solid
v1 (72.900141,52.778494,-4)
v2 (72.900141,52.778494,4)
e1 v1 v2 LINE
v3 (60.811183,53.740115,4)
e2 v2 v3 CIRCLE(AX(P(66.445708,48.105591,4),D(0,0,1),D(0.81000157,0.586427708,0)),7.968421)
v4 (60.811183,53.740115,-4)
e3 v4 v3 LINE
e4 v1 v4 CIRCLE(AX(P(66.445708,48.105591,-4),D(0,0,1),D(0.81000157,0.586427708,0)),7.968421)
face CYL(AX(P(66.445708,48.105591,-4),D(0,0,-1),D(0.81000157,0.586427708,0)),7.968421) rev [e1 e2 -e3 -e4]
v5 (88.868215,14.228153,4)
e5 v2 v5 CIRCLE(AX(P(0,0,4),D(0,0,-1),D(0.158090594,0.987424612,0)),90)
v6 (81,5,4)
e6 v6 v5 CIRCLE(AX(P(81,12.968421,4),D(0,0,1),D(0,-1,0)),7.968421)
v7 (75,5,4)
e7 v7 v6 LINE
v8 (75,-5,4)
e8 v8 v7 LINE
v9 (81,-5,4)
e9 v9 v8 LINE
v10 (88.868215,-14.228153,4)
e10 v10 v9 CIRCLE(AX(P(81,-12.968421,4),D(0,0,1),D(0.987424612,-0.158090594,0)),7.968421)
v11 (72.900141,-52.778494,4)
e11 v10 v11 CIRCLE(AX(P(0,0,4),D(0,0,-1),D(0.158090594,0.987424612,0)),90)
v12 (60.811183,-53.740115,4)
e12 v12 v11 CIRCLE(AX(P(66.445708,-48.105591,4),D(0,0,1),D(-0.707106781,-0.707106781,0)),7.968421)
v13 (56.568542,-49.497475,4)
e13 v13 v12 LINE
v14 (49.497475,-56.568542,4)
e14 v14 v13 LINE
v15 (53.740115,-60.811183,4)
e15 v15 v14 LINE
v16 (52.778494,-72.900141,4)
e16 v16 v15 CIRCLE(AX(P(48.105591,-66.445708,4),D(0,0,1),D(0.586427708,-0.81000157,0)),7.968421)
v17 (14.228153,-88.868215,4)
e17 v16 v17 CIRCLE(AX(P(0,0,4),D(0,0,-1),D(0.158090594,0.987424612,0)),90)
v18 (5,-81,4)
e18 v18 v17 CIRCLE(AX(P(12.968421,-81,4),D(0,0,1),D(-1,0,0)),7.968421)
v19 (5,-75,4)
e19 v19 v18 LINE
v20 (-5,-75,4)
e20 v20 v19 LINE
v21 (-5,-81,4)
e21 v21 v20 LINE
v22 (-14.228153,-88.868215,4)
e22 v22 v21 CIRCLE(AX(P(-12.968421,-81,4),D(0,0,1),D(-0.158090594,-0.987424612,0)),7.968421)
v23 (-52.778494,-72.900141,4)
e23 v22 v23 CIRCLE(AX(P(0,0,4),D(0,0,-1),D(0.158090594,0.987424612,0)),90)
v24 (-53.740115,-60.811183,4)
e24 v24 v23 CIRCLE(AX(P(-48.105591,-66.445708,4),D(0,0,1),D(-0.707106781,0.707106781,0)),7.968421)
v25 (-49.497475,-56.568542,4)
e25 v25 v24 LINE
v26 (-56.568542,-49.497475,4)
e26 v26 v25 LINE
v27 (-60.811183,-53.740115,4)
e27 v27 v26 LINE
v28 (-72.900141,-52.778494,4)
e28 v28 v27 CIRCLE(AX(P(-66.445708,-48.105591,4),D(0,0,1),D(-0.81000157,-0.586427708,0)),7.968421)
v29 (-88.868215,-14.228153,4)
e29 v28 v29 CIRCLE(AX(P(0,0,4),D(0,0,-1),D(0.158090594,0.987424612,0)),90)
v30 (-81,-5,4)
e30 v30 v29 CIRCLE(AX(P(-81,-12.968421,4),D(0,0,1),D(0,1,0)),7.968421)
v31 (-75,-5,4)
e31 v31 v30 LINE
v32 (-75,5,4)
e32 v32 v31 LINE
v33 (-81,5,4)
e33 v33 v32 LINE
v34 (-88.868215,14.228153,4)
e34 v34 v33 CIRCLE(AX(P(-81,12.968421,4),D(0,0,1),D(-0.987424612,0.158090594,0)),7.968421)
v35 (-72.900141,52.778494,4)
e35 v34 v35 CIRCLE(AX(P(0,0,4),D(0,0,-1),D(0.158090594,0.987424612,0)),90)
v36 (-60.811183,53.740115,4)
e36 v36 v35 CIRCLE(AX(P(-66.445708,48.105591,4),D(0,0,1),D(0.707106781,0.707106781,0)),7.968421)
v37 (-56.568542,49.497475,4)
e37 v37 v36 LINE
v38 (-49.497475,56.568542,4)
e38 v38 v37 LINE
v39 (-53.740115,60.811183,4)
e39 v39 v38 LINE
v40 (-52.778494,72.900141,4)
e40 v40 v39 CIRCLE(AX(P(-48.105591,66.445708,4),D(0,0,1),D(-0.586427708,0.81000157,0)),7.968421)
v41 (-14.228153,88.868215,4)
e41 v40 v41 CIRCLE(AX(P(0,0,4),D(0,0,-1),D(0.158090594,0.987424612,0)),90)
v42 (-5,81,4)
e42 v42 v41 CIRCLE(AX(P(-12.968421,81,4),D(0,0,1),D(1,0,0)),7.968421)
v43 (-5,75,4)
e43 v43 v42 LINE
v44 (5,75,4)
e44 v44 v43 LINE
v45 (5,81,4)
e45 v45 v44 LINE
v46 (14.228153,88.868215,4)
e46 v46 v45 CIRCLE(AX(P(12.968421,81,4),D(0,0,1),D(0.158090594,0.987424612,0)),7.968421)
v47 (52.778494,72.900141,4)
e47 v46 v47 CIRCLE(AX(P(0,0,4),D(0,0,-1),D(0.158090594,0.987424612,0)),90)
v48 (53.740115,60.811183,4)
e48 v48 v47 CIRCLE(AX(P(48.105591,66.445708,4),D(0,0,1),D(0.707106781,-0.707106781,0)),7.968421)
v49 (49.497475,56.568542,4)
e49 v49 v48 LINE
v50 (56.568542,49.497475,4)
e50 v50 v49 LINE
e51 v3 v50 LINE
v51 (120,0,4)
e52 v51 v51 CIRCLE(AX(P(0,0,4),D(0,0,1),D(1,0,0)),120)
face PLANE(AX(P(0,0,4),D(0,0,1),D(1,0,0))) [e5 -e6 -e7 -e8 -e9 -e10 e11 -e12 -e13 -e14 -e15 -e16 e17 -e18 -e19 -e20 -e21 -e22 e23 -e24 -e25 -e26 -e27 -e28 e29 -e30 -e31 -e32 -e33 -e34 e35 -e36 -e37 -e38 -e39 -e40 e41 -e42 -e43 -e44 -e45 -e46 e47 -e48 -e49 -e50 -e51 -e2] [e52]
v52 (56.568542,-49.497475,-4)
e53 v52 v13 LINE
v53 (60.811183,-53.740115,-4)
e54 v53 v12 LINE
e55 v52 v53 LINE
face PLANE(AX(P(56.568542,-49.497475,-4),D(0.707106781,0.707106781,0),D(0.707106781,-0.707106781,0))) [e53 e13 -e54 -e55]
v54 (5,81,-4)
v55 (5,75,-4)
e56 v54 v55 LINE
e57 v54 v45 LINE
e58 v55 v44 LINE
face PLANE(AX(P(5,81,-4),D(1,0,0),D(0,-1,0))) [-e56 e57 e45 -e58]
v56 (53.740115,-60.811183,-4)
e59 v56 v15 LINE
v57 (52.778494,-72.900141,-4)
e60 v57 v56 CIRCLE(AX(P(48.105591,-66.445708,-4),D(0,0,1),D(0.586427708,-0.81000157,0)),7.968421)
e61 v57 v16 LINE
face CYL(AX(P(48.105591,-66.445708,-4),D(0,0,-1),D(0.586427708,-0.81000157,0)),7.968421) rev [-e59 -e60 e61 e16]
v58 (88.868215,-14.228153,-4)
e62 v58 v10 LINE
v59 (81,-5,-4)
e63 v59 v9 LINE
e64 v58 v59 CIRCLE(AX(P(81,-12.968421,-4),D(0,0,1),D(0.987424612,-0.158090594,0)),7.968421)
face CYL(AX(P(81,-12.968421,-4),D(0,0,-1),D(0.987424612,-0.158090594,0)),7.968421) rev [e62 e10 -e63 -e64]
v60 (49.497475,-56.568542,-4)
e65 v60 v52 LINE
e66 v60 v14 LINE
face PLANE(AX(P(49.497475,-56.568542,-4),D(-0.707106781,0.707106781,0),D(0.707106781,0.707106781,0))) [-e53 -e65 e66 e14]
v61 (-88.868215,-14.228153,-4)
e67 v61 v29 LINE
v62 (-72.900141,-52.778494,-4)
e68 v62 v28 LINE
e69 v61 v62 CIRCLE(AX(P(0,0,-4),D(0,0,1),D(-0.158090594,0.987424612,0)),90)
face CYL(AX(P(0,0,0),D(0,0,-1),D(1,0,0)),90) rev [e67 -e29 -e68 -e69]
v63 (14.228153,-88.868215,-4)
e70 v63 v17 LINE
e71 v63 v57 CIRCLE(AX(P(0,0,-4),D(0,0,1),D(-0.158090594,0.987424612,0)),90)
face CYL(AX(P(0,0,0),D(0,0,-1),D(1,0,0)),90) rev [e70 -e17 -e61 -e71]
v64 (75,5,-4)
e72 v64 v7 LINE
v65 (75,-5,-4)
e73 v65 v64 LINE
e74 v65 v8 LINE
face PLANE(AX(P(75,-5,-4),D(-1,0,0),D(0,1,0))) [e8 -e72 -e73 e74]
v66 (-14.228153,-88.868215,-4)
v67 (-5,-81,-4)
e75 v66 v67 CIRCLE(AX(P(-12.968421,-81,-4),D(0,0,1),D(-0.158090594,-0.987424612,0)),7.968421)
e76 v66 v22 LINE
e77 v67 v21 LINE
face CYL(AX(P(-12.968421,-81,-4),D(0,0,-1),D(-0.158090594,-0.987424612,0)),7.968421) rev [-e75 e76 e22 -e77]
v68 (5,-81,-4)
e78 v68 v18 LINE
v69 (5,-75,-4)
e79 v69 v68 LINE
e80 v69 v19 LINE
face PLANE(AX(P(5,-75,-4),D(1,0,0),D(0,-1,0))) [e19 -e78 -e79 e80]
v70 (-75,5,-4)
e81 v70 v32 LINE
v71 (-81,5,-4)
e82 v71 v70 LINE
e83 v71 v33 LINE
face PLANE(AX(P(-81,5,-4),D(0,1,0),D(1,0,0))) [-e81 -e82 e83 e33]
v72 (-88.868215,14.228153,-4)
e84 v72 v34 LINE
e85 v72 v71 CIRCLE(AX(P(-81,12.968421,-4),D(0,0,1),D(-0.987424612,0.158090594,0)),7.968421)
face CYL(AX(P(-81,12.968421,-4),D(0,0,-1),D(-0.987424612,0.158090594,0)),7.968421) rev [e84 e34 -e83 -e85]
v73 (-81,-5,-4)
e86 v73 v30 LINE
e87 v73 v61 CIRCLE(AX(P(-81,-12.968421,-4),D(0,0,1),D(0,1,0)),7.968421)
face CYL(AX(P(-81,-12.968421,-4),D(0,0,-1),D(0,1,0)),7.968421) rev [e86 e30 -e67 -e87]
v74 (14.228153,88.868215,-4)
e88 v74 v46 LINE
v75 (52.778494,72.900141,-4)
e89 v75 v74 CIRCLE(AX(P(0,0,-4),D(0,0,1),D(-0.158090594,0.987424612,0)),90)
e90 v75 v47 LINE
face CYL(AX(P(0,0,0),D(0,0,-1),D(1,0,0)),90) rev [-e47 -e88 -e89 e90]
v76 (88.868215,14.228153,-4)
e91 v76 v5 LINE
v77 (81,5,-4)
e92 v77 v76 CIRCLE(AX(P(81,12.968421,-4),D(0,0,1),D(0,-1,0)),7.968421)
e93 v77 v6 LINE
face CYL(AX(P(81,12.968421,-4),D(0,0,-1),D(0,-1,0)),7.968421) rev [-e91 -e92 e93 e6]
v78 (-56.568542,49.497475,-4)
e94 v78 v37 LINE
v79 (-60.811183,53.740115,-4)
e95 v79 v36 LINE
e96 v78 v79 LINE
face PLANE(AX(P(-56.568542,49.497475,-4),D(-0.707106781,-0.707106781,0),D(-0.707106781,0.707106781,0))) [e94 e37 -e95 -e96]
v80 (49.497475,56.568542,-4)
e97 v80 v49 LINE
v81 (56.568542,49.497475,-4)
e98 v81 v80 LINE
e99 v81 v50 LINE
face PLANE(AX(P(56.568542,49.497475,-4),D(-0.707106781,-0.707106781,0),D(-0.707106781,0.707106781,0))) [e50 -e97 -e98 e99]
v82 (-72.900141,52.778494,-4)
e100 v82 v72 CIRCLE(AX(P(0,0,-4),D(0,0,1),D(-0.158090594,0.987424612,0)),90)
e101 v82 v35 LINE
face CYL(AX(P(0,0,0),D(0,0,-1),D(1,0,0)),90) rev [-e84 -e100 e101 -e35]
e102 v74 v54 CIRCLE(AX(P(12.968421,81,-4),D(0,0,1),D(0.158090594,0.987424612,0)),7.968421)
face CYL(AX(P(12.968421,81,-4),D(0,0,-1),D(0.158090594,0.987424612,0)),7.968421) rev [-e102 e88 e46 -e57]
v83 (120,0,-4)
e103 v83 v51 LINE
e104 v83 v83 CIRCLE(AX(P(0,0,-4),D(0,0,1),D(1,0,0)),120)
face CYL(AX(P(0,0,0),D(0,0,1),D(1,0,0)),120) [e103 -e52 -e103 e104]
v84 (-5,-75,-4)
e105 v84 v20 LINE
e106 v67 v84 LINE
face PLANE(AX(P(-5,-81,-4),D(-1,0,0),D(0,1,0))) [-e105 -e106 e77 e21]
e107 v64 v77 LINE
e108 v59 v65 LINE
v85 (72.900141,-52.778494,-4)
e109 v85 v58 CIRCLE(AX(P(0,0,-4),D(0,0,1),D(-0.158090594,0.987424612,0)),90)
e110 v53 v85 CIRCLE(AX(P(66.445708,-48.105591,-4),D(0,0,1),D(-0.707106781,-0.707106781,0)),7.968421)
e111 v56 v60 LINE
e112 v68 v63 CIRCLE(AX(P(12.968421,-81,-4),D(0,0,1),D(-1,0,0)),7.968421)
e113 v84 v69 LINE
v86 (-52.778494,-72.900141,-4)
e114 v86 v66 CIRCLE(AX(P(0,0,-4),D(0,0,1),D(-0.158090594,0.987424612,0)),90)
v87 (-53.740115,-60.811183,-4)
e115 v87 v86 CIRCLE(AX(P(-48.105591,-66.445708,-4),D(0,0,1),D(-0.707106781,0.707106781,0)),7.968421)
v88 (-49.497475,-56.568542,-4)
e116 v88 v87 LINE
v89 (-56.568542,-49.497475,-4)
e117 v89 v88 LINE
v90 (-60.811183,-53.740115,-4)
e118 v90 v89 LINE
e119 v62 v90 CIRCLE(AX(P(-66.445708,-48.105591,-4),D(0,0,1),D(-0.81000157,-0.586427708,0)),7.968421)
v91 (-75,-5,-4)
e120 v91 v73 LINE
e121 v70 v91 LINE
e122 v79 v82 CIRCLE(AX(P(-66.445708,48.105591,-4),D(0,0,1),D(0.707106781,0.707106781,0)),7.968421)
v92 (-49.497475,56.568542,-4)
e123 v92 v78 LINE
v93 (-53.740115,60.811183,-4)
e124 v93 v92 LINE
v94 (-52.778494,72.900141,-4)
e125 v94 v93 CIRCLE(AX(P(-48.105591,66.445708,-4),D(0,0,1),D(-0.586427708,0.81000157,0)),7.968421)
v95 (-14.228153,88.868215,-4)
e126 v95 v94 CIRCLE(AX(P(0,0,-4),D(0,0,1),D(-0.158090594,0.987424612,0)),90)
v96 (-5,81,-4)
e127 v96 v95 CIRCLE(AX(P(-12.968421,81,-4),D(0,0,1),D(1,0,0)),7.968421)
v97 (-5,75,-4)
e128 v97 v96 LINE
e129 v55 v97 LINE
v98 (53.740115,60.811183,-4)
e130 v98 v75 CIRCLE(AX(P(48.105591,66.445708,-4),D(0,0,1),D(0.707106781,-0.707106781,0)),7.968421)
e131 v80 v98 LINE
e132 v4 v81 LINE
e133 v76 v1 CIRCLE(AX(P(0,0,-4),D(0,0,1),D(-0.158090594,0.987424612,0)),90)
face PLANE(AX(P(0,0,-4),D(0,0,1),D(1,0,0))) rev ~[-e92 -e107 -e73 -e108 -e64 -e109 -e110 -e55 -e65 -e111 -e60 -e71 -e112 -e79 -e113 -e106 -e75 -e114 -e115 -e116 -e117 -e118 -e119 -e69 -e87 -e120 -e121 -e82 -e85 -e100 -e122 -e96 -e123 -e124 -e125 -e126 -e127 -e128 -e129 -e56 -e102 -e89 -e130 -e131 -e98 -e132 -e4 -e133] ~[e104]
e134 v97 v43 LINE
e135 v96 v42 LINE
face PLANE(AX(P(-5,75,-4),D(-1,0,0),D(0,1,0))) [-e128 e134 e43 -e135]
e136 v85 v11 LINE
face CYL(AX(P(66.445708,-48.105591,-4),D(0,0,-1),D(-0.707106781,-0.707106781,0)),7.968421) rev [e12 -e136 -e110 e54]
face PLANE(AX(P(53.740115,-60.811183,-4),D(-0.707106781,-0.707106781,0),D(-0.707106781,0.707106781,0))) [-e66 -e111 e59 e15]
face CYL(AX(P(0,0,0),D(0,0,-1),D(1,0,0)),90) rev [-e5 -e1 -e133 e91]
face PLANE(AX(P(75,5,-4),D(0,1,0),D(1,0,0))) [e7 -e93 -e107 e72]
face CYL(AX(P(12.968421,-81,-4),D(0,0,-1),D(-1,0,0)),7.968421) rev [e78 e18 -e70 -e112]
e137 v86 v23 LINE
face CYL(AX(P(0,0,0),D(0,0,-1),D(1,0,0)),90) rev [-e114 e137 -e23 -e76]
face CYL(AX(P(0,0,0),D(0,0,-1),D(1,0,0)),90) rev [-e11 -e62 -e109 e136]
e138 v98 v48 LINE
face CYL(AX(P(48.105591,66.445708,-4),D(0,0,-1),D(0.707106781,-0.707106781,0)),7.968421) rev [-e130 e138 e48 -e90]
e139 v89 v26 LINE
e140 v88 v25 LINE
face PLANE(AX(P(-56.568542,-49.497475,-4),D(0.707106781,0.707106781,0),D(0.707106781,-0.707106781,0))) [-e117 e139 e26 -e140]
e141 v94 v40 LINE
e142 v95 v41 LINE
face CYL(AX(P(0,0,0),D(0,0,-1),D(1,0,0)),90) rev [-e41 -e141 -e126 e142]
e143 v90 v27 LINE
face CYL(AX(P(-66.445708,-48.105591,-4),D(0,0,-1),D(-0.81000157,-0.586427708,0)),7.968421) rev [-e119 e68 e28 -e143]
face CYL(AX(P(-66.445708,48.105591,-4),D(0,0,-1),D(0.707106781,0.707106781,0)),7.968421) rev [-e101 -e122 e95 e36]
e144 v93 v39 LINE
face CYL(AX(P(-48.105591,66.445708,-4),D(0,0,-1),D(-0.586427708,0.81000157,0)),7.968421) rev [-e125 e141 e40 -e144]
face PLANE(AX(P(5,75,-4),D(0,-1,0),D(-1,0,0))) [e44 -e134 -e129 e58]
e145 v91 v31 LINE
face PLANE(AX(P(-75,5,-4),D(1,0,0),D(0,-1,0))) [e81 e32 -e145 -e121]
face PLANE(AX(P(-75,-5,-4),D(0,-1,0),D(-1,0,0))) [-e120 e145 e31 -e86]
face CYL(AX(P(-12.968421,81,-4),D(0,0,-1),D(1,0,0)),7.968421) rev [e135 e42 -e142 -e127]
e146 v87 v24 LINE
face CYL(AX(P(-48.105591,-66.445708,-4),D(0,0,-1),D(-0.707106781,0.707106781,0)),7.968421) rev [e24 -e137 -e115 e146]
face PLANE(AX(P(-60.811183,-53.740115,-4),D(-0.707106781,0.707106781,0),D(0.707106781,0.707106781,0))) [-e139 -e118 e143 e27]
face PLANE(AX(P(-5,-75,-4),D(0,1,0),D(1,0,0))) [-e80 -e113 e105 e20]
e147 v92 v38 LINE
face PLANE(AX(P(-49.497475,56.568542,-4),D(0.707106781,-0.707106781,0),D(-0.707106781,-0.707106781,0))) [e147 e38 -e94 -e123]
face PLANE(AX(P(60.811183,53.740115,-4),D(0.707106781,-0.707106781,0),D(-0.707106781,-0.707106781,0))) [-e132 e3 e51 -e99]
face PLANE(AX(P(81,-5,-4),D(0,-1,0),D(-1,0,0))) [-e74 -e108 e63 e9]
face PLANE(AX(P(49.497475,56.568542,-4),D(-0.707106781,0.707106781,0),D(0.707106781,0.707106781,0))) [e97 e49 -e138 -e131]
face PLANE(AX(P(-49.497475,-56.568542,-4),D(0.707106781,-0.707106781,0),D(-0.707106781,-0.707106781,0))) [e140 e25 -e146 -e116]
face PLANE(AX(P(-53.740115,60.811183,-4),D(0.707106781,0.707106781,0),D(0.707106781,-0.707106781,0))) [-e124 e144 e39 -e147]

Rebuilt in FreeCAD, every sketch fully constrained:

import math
import FreeCAD as App
import Part
import Sketcher
from FreeCAD import Vector

doc = App.newDocument("Part")
body = doc.addObject("PartDesign::Body", "Body")

# Sketch on XY plane
sketch1 = body.newObject("Sketcher::SketchObject", "Sketch")
sketch1.AttachmentSupport = (doc.getObject("XY_Plane"), [""])
sketch1.MapMode = "FlatFace"
sketch1.addGeometry([
    Part.Circle(Vector(0, 0, 0), Vector(0, 0, 1), 120),
    Part.Circle(Vector(0, 0, 0), Vector(0, 0, 1), 90),
], False)
sketch1.addConstraint([
    Sketcher.Constraint("Coincident", 0, 3, -1, 1),
    Sketcher.Constraint("Coincident", 1, 3, -1, 1),
    Sketcher.Constraint("Diameter", 0, 240.0),
    Sketcher.Constraint("Diameter", 1, 180.0),
])
pad1 = body.newObject("PartDesign::Pad", "Pad")
pad1.Profile = sketch1
pad1.Length = 8
pad1.Midplane = True

# Sketch on XY plane
sketch2 = body.newObject("Sketcher::SketchObject", "Sketch001")
sketch2.AttachmentSupport = (doc.getObject("XY_Plane"), [""])
sketch2.MapMode = "FlatFace"
sketch2.AttachmentOffset = App.Placement(Vector(0, 0, -4), App.Rotation())
sketch2.addGeometry([
    Part.LineSegment(Vector(-5, 75, 0), Vector(5, 75, 0)),  # 0
    Part.LineSegment(Vector(5, 75, 0), Vector(5, 81, 0)),  # 1
    Part.ArcOfCircle(Part.Circle(Vector(12.968421, 81, 0), Vector(0, 0, 1), 7.968421), math.radians(80.903915), math.radians(180)),  # 2
    Part.ArcOfCircle(Part.Circle(Vector(0, 0, 0), Vector(0, 0, 1), 90), math.radians(80.903915), math.radians(99.096085)),  # 3
    Part.ArcOfCircle(Part.Circle(Vector(-12.968421, 81, 0), Vector(0, 0, 1), 7.968421), math.radians(0), math.radians(99.096085)),  # 4
    Part.LineSegment(Vector(-5, 81, 0), Vector(-5, 75, 0)),  # 5
], False)
sketch2.addConstraint([
    Sketcher.Constraint("Coincident", 0, 2, 1, 1),
    Sketcher.Constraint("Tangent", 1, 2, 2, 2),
    Sketcher.Constraint("Tangent", 2, 1, 3, 1),
    Sketcher.Constraint("Tangent", 3, 2, 4, 2),
    Sketcher.Constraint("Tangent", 4, 1, 5, 1),
    Sketcher.Constraint("Coincident", 5, 2, 0, 1),
    Sketcher.Constraint("Horizontal", 0),
    Sketcher.Constraint("Vertical", 1),
    Sketcher.Constraint("Vertical", 5),
    Sketcher.Constraint("Coincident", 3, 3, -1, 1),
    Sketcher.Constraint("Equal", 2, 4),
    Sketcher.Constraint("Horizontal", 2, 3, 4, 3),
    Sketcher.Constraint("Radius", 3, 90.0),
    Sketcher.Constraint("DistanceX", 0, 1, 0, 2, 10.0),
    Sketcher.Constraint("DistanceY", 1, 1, 1, 2, 6.0),
    Sketcher.Constraint("DistanceY", -1, 1, 2, 3, 81.0),
])
pad2 = body.newObject("PartDesign::Pad", "Pad001")
pad2.Profile = sketch2
pad2.Length = 8
doc.recompute()

polarpattern = body.newObject("PartDesign::PolarPattern", "PolarPattern")
polarpattern.Originals = [pad2]
polarpattern.Axis = (doc.getObject("Z_Axis"), [""])
polarpattern.Angle = 360
polarpattern.Occurrences = 8
body.Tip = polarpattern

doc.recompute()
